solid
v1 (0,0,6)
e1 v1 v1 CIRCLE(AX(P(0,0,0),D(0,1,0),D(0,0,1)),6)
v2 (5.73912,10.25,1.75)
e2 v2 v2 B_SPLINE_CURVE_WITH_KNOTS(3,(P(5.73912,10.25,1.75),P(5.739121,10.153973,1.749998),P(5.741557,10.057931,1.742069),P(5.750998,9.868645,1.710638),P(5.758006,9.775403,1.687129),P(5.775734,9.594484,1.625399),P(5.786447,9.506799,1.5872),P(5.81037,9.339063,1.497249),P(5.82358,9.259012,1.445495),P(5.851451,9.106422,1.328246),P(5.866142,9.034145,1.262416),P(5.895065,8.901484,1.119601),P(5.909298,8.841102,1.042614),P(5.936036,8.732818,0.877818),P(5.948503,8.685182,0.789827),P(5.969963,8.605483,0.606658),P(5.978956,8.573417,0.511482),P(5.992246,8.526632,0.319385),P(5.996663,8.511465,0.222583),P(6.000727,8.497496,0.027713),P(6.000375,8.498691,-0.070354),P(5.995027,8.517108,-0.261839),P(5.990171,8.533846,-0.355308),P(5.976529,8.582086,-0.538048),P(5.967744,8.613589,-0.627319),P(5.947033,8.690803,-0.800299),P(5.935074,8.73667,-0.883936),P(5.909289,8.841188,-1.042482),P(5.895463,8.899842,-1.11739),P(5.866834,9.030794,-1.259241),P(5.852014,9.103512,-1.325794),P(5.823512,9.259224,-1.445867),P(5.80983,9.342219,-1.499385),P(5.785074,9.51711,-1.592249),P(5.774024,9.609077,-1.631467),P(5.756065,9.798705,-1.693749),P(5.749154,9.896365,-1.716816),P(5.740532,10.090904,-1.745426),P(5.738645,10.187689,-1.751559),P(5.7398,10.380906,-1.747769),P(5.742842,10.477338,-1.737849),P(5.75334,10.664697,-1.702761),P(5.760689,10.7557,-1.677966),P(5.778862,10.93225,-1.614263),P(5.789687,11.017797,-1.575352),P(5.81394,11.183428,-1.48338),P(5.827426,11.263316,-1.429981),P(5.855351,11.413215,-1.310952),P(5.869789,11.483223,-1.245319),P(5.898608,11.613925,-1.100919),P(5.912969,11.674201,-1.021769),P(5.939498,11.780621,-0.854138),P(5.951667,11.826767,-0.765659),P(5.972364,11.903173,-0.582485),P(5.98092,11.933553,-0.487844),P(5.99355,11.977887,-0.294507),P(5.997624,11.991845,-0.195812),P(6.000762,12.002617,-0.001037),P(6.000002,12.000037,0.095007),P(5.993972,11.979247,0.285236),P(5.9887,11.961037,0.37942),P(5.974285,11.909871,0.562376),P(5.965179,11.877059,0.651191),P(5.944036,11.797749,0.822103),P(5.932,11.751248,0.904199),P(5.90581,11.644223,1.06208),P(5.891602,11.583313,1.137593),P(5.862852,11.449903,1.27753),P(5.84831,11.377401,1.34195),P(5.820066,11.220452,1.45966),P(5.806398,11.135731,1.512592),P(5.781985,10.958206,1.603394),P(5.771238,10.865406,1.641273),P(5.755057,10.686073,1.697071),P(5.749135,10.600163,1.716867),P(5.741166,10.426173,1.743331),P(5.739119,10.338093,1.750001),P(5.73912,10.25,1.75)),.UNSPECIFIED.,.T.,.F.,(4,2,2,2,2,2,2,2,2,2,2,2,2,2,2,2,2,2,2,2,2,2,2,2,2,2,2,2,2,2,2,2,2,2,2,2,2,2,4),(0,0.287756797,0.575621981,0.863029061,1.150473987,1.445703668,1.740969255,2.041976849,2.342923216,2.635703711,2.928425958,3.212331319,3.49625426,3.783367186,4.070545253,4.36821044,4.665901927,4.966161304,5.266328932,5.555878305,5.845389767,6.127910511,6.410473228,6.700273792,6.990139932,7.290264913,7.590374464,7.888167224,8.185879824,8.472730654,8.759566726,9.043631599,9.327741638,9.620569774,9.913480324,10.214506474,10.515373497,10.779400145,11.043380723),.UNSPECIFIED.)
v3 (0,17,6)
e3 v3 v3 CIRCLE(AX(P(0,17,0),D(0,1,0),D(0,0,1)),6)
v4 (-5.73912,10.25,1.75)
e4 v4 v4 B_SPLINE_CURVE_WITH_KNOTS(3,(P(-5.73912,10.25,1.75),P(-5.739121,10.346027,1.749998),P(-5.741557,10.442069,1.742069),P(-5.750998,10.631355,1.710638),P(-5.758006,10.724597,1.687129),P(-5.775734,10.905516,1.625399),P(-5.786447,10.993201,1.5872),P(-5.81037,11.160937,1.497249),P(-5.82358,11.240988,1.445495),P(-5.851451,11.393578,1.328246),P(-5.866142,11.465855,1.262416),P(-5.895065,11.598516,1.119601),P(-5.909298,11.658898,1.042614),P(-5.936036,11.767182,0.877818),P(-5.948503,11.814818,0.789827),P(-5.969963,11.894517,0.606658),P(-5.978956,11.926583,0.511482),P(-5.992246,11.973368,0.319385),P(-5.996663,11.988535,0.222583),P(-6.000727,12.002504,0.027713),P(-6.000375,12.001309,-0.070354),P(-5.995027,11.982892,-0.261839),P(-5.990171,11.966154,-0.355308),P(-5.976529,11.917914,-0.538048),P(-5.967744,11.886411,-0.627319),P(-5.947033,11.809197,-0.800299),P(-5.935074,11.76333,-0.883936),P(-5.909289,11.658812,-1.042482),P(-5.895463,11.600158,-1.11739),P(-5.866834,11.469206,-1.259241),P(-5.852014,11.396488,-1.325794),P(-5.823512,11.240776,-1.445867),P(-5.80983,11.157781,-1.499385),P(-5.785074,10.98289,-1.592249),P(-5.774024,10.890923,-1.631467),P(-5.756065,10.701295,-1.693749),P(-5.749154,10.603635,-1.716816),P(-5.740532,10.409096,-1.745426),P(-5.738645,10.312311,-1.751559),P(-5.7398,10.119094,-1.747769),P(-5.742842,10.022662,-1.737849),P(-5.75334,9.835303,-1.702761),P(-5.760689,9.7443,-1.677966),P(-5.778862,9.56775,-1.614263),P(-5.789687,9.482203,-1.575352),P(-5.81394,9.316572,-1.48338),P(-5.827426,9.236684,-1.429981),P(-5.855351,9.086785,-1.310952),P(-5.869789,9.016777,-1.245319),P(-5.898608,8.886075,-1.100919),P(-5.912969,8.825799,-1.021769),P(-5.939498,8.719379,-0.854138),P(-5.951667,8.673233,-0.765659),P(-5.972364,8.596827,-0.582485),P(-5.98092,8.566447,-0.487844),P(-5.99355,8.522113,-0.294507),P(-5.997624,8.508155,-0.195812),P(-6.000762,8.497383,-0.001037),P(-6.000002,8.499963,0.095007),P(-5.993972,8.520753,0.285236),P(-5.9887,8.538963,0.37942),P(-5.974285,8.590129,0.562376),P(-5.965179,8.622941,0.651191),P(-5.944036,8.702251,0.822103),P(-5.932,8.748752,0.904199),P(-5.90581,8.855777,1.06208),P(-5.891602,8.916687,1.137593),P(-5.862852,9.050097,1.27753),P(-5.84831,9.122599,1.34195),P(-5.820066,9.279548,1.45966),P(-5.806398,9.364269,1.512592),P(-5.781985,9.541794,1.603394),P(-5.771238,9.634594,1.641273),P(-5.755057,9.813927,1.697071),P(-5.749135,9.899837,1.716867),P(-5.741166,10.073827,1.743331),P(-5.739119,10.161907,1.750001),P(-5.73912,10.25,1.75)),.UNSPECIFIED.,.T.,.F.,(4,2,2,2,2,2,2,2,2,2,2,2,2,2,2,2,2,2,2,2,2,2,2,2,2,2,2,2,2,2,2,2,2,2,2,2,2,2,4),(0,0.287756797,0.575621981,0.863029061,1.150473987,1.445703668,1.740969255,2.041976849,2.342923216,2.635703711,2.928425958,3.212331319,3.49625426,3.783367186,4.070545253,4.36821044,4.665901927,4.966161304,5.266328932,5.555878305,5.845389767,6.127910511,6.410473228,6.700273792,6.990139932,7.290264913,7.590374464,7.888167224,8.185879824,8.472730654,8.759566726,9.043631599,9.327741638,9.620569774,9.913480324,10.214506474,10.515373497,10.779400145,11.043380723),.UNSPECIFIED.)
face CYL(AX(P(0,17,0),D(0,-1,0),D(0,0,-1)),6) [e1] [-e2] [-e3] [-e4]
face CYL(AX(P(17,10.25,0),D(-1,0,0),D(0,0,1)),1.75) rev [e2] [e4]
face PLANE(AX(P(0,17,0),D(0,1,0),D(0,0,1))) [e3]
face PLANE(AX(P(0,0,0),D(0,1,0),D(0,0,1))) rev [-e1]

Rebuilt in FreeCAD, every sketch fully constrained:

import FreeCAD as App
import Part
import Sketcher

V = App.Vector
Q = App.Units.Quantity

doc = App.newDocument("Part")
body = doc.addObject("PartDesign::Body", "Body")

sketch1 = body.newObject("Sketcher::SketchObject", "Sketch")
sketch1.AttachmentSupport = (doc.getObject("XZ_Plane"), [""])
sketch1.MapMode = "FlatFace"
sketch1.addGeometry(Part.Circle(V(0, 0, 0), V(0, 0, 1), 6), False)
sketch1.addConstraint([
    Sketcher.Constraint("Coincident", 0, 3, -1, 1),
    Sketcher.Constraint("Diameter", 0, Q("12 mm")),
])
pad1 = body.newObject("PartDesign::Pad", "Pad")
pad1.Profile = sketch1
pad1.Length = 17
pad1.Reversed = True

sketch2 = body.newObject("Sketcher::SketchObject", "Sketch001")
sketch2.AttachmentSupport = (doc.getObject("YZ_Plane"), [""])
sketch2.MapMode = "FlatFace"
sketch2.addGeometry(Part.Circle(V(10.2, 0, 0), V(0, 0, 1), 1.8), False)
sketch2.addConstraint([
    Sketcher.Constraint("PointOnObject", 0, 3, -1),
    Sketcher.Constraint("Diameter", 0, Q("3.5 mm")),
    Sketcher.Constraint("DistanceX", -1, 1, 0, 3, Q("10.25 mm")),
])
pocket1 = body.newObject("PartDesign::Pocket", "Pocket")
pocket1.Profile = sketch2
pocket1.Type = "ThroughAll"
pocket1.Midplane = True

doc.recompute()
